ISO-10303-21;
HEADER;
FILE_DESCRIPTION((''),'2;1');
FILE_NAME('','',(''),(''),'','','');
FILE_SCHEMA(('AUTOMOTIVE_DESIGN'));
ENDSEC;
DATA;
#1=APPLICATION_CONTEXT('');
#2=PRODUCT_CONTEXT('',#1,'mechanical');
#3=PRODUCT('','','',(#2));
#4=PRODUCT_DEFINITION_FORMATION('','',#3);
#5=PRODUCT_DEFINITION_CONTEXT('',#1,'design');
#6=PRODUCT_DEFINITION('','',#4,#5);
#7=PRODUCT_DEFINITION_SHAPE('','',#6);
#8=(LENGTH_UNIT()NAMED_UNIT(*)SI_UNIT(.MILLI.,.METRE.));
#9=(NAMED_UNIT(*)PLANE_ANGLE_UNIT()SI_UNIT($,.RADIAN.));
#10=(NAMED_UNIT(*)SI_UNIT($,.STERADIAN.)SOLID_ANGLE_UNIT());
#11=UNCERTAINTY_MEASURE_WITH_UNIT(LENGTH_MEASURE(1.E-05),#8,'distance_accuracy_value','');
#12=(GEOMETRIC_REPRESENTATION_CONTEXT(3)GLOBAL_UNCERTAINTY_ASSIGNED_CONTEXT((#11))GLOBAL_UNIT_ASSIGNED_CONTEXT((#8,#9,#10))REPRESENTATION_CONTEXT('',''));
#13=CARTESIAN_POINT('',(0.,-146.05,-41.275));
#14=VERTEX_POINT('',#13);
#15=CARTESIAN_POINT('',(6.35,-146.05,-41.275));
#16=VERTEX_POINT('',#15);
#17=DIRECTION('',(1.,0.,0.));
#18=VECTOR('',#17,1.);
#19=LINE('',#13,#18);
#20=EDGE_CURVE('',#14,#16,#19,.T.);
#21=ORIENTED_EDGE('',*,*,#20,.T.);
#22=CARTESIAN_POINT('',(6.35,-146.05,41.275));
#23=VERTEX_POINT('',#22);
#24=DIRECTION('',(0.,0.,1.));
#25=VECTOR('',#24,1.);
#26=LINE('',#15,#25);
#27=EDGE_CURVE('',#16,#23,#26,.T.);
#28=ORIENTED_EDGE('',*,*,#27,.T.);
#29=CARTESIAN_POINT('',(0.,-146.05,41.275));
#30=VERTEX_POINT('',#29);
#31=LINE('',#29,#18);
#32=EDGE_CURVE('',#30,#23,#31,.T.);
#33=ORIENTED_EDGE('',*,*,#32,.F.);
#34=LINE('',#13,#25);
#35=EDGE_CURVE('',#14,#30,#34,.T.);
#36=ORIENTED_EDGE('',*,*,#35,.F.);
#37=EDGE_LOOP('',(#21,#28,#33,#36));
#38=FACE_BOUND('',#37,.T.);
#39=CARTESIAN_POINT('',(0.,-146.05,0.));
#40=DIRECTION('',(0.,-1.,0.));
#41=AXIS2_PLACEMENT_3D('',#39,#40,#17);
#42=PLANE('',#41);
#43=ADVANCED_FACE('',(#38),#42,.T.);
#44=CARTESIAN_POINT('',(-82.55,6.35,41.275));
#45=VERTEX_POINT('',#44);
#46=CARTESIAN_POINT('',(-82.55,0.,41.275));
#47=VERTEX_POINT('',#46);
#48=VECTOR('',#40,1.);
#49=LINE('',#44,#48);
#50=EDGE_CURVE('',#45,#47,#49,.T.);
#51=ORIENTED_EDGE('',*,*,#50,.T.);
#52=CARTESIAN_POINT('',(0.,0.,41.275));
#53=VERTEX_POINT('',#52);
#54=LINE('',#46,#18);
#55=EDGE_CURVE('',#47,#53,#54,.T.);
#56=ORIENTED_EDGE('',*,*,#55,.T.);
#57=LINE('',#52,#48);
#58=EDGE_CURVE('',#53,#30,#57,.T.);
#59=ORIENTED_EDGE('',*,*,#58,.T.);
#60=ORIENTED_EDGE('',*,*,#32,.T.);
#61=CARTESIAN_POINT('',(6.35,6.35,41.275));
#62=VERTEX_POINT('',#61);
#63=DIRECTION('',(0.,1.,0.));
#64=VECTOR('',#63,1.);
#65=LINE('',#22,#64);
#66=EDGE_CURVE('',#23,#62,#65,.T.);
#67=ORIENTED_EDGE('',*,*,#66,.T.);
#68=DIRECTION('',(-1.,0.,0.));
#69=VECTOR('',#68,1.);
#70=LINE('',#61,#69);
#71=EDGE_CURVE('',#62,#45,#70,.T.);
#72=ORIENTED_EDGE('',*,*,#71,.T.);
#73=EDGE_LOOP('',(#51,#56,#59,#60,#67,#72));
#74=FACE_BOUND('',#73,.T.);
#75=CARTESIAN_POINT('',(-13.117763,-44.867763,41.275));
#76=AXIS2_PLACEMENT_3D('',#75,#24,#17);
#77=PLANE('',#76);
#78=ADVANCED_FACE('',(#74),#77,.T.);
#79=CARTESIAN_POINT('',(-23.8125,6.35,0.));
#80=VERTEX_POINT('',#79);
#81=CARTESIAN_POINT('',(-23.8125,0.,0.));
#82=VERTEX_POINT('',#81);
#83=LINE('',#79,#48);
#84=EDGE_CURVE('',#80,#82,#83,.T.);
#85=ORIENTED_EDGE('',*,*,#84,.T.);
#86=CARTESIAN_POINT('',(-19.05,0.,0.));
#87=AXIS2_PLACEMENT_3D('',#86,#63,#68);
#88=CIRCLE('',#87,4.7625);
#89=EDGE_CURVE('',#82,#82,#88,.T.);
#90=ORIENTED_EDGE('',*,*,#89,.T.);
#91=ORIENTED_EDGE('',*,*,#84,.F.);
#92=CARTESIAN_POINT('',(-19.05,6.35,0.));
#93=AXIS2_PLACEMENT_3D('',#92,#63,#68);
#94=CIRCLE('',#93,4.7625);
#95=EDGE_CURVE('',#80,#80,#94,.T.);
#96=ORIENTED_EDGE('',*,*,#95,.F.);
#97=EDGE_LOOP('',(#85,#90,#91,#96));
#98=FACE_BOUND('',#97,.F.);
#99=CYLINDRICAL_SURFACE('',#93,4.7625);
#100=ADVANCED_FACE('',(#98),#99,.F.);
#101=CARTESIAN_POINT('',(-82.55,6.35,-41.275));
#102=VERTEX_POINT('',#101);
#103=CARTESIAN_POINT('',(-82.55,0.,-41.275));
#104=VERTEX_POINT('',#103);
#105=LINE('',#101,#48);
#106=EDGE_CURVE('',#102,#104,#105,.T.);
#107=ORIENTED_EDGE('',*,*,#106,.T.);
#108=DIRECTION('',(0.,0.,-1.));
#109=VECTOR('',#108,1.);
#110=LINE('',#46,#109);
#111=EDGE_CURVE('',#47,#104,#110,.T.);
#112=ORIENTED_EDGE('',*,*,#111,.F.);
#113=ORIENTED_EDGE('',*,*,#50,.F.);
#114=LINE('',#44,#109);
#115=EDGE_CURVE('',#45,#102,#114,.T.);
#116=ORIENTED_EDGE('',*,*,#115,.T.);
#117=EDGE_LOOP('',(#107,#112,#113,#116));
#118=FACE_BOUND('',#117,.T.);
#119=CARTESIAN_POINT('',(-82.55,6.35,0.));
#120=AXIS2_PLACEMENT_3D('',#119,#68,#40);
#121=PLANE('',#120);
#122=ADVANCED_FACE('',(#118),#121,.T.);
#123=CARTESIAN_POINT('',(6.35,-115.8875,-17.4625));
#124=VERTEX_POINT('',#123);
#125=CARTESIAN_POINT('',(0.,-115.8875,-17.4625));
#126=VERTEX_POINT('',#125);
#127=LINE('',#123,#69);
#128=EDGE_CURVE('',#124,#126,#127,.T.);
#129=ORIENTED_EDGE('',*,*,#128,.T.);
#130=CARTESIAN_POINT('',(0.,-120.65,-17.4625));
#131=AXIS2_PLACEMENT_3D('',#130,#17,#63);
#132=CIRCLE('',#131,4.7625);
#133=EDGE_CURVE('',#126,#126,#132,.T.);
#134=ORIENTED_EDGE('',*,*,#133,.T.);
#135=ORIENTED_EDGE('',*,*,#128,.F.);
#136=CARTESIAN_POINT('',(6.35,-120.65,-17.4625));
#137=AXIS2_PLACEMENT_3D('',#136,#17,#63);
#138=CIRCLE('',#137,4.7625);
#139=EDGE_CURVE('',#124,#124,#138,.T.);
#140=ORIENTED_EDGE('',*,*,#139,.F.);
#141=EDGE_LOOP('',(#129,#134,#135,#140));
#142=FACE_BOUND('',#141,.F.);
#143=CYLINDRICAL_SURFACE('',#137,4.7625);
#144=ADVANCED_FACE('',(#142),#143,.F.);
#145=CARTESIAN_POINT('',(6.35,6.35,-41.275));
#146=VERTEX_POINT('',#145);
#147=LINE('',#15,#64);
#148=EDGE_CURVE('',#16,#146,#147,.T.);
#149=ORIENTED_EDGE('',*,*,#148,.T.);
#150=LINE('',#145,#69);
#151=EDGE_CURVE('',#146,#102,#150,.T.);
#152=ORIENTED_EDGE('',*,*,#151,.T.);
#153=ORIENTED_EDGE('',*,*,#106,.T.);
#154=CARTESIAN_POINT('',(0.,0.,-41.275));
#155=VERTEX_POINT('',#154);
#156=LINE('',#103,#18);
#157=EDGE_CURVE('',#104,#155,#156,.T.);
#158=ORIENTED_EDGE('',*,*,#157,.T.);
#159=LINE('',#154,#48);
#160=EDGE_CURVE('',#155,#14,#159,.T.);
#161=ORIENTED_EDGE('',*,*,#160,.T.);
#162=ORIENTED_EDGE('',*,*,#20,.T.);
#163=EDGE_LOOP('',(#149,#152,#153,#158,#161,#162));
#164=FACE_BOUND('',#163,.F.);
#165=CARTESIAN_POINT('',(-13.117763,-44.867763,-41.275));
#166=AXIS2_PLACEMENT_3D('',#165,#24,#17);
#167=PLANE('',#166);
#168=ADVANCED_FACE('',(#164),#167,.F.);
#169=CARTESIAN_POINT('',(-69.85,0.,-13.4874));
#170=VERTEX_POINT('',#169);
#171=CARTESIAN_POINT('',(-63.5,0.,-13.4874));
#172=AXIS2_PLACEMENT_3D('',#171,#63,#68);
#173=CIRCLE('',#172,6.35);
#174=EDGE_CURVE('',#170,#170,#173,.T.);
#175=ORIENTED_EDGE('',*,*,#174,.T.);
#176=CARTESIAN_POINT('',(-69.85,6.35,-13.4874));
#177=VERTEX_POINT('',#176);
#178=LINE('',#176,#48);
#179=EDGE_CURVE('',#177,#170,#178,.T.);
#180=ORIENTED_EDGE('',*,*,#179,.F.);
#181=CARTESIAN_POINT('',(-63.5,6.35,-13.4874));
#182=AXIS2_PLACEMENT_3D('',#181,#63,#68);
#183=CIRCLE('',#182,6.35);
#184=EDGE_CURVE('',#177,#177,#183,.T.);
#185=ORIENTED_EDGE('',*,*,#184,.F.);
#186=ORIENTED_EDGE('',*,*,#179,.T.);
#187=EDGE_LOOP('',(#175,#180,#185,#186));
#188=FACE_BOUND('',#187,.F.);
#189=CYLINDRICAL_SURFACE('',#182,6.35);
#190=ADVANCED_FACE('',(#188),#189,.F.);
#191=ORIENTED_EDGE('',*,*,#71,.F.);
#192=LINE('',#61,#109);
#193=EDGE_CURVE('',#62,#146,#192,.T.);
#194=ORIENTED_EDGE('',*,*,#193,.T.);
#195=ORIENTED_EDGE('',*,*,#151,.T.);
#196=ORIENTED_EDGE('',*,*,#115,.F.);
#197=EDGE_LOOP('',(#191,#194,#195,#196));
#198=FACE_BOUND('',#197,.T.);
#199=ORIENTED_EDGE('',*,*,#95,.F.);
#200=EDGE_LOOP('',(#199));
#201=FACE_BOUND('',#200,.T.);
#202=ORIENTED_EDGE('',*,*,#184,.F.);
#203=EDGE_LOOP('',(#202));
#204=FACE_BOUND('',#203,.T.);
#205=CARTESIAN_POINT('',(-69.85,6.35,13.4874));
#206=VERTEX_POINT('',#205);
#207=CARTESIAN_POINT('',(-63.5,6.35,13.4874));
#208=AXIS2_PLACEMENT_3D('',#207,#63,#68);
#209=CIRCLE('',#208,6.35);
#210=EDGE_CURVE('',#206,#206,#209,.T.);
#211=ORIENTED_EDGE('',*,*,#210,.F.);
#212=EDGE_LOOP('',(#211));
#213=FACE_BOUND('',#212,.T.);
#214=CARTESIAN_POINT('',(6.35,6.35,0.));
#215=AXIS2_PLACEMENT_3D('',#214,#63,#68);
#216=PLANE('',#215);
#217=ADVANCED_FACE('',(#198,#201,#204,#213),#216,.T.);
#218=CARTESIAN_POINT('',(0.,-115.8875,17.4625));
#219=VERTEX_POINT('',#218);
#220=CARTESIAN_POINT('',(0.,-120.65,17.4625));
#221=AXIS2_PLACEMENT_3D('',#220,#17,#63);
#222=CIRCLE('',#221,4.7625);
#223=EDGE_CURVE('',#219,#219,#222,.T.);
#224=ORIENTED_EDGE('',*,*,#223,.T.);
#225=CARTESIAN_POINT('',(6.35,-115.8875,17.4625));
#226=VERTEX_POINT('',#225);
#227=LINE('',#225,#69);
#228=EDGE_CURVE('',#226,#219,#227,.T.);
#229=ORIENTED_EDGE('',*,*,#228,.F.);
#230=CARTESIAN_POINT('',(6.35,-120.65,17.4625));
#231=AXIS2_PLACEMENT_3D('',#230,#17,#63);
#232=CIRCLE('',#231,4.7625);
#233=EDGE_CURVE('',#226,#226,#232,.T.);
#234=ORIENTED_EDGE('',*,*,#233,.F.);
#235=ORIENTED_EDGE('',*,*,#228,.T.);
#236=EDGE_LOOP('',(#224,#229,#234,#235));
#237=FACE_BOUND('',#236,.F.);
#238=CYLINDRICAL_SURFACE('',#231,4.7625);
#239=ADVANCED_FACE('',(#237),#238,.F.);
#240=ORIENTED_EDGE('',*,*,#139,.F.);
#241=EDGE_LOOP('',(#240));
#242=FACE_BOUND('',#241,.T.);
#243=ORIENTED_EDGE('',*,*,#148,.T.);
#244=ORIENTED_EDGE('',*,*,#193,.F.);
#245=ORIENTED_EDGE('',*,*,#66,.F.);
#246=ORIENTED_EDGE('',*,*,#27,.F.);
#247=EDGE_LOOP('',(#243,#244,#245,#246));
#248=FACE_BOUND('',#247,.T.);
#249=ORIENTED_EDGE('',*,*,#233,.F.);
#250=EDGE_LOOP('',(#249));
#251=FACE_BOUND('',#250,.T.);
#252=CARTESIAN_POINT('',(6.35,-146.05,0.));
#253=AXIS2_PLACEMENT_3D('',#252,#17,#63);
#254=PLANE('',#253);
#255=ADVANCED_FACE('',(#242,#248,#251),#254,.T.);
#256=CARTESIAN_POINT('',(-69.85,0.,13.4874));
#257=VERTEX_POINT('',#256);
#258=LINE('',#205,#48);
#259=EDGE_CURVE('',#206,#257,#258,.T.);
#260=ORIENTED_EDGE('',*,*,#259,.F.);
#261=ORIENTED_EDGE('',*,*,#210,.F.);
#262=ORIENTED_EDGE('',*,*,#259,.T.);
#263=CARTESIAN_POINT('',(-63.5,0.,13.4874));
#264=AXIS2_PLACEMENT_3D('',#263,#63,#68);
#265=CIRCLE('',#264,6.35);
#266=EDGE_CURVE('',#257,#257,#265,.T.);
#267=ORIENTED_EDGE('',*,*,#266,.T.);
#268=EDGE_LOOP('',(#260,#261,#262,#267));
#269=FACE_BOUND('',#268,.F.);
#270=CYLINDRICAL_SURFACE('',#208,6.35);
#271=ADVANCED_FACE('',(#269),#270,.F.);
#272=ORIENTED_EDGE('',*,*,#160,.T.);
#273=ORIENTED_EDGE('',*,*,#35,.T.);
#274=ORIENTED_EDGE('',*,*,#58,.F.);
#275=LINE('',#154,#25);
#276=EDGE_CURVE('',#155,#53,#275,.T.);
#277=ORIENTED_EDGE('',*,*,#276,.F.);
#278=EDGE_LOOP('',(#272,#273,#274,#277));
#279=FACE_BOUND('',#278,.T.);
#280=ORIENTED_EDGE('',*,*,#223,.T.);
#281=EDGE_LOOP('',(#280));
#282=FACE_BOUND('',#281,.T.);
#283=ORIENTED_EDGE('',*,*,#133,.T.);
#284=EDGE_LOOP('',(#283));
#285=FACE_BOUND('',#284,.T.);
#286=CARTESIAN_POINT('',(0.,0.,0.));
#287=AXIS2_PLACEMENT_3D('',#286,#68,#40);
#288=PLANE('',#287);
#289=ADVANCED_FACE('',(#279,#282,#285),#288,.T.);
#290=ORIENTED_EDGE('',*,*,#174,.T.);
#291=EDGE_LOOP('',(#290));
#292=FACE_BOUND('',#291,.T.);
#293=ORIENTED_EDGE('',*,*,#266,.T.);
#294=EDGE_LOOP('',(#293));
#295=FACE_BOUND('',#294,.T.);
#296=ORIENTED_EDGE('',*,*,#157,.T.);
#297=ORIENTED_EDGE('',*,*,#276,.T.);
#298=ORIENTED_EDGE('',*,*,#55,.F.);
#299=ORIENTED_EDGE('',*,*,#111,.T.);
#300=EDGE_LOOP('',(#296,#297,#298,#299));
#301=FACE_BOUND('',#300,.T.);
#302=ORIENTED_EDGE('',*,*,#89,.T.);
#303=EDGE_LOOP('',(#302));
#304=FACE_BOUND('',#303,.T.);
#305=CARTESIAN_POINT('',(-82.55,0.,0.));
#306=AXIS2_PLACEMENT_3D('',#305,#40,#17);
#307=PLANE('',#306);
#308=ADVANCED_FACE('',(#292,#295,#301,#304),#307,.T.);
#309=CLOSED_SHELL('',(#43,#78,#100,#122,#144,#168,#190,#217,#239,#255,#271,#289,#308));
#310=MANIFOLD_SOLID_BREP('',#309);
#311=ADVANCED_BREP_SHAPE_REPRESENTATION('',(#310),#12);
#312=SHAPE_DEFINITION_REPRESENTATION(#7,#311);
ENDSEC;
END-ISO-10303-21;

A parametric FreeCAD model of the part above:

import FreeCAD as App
import Part
import Sketcher
from FreeCAD import Vector
Q = App.Units.Quantity


def add_polygon(sketch, points):
    """Adds a closed chain of lines whose ends are joined by coincident constraints."""
    first, n = sketch.GeometryCount, len(points)
    for a, b in zip(points, points[1:] + points[:1]):
        sketch.addGeometry(Part.LineSegment(App.Vector(*a, 0), App.Vector(*b, 0)), False)
    for i in range(n):
        sketch.addConstraint(Sketcher.Constraint("Coincident", first + i, 2, first + (i + 1) % n, 1))

doc = App.newDocument("Part")
body = doc.addObject("PartDesign::Body", "Body")

# Sketch on XY plane
sketch1 = body.newObject("Sketcher::SketchObject", "Sketch")
sketch1.AttachmentSupport = (doc.getObject("XY_Plane"), [""])
sketch1.MapMode = "FlatFace"
add_polygon(sketch1, [(-83, 0), (0, 0), (0, -146), (6, -146), (6, 6), (-83, 6)])  # lines 0-5
sketch1.addConstraint([
    Sketcher.Constraint("Horizontal", 0),
    Sketcher.Constraint("Vertical", 1),
    Sketcher.Constraint("Horizontal", 2),
    Sketcher.Constraint("Vertical", 3),
    Sketcher.Constraint("Horizontal", 4),
    Sketcher.Constraint("Vertical", 5),
    Sketcher.Constraint("Coincident", 0, 2, -1, 1),
    Sketcher.Constraint("Equal", 2, 5),
    Sketcher.Constraint("DistanceY", 3, 1, 3, 2, Q("6 in")),
    Sketcher.Constraint("DistanceX", 4, 2, 4, 1, Q("3.5 in")),
    Sketcher.Constraint("DistanceX", 0, 1, 0, 2, Q("3.25 in")),
])
pad1 = body.newObject("PartDesign::Pad", "Pad")
pad1.Profile = sketch1
pad1.Length = Q("3.25 in")
pad1.Midplane = True

# Sketch on YZ plane
sketch2 = body.newObject("Sketcher::SketchObject", "Sketch001")
sketch2.AttachmentSupport = (doc.getObject("YZ_Plane"), [""])
sketch2.MapMode = "FlatFace"
sketch2.AttachmentOffset = App.Placement(Vector(0, 0, 0.25 * 25.4), App.Rotation())
sketch2.addGeometry([
    Part.Circle(Vector(-120.7, 17.5, 0), Vector(0, 0, 1), 4.8),
    Part.Circle(Vector(-120.7, -17.5, 0), Vector(0, 0, 1), 4.8),
], False)
sketch2.addConstraint([
    Sketcher.Constraint("Equal", 0, 1),
    Sketcher.Constraint("Symmetric", 0, 3, 1, 3, -1),
    Sketcher.Constraint("Diameter", 0, Q("0.375 in")),
    Sketcher.Constraint("DistanceX", 0, 3, -1, 1, Q("4.75 in")),
    Sketcher.Constraint("DistanceY", -1, 1, 0, 3, Q("0.6875 in")),
])
pocket1 = body.newObject("PartDesign::Pocket", "Pocket")
pocket1.Profile = sketch2
pocket1.Type = "ThroughAll"

# Sketch on XZ plane
sketch3 = body.newObject("Sketcher::SketchObject", "Sketch002")
sketch3.AttachmentSupport = (doc.getObject("XZ_Plane"), [""])
sketch3.MapMode = "FlatFace"
sketch3.AttachmentOffset = App.Placement(Vector(0, 0, -0.25 * 25.4), App.Rotation())
sketch3.addGeometry([
    Part.Circle(Vector(-63.5, 13.5, 0), Vector(0, 0, 1), 6.3),
    Part.Circle(Vector(-63.5, -13.5, 0), Vector(0, 0, 1), 6.3),
    Part.Circle(Vector(-19.1, 0, 0), Vector(0, 0, 1), 4.8),
], False)
sketch3.addConstraint([
    Sketcher.Constraint("Equal", 0, 1),
    Sketcher.Constraint("Symmetric", 0, 3, 1, 3, -1),
    Sketcher.Constraint("PointOnObject", 2, 3, -1),
    Sketcher.Constraint("Diameter", 0, Q("0.5 in")),
    Sketcher.Constraint("Diameter", 2, Q("0.375 in")),
    Sketcher.Constraint("DistanceX", 0, 3, -1, 1, Q("2.5 in")),
    Sketcher.Constraint("DistanceX", 2, 3, -1, 1, Q("0.75 in")),
    Sketcher.Constraint("DistanceY", -1, 1, 0, 3, Q("0.531 in")),
])
pocket2 = body.newObject("PartDesign::Pocket", "Pocket001")
pocket2.Profile = sketch3
pocket2.Type = "ThroughAll"
pocket2.Reversed = True

doc.recompute()
